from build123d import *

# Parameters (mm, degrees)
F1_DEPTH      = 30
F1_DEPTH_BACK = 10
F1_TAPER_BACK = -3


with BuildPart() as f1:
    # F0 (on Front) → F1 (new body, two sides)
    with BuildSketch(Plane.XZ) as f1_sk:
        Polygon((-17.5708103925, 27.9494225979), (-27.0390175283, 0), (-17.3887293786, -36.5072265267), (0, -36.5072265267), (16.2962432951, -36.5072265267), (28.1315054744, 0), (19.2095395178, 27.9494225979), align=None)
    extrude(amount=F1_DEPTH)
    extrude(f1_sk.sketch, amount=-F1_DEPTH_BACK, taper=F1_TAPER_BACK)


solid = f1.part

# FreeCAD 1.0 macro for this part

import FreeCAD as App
import Part
import Sketcher
from FreeCAD import Vector
Q = App.Units.Quantity


def add_polygon(sketch, points):
    """Adds a closed chain of lines whose ends are joined by coincident constraints."""
    first, n = sketch.GeometryCount, len(points)
    for a, b in zip(points, points[1:] + points[:1]):
        sketch.addGeometry(Part.LineSegment(App.Vector(*a, 0), App.Vector(*b, 0)), False)
    for i in range(n):
        sketch.addConstraint(Sketcher.Constraint("Coincident", first + i, 2, first + (i + 1) % n, 1))

doc = App.newDocument("Part")
body = doc.addObject("PartDesign::Body", "Body")

# Sketch on XZ plane
sketch1 = body.newObject("Sketcher::SketchObject", "Sketch")
sketch1.AttachmentSupport = (doc.getObject("XZ_Plane"), [""])
sketch1.MapMode = "FlatFace"
add_polygon(sketch1, [(-18, 28), (-27, 0), (-17, -37), (16, -37), (28, 0), (19, 28)])  # lines 0-5
sketch1.addConstraint([
    Sketcher.Constraint("Horizontal", 2),
    Sketcher.Constraint("Horizontal", 5),
    Sketcher.Constraint("PointOnObject", 0, 2, -1),
    Sketcher.Constraint("PointOnObject", 3, 2, -1),
    Sketcher.Constraint("DistanceX", 5, 2, 5, 1, Q("36.78035 mm")),
    Sketcher.Constraint("Distance", 0, Q("29.509611 mm")),
    Sketcher.Constraint("Distance", 3, Q("38.377741 mm")),
    Sketcher.Constraint("Distance", 4, Q("29.338911 mm")),
    Sketcher.Constraint("DistanceX", 2, 1, 2, 2, Q("33.684973 mm")),
    Sketcher.Constraint("DistanceX", 1, 2, -1, 1, Q("17.388729 mm")),
    Sketcher.Constraint("DistanceX", -1, 1, 4, 2, Q("19.20954 mm")),
    Sketcher.Constraint("DistanceX", 0, 2, 1, 2, Q("9.650288 mm")),
])
pad1 = body.newObject("PartDesign::Pad", "Pad")
pad1.Profile = sketch1
pad1.Length = 30
pad2 = body.newObject("PartDesign::Pad", "Pad001")
pad2.Profile = sketch1
pad2.Length = 10
pad2.Reversed = True
pad2.TaperAngle = 3

doc.recompute()
